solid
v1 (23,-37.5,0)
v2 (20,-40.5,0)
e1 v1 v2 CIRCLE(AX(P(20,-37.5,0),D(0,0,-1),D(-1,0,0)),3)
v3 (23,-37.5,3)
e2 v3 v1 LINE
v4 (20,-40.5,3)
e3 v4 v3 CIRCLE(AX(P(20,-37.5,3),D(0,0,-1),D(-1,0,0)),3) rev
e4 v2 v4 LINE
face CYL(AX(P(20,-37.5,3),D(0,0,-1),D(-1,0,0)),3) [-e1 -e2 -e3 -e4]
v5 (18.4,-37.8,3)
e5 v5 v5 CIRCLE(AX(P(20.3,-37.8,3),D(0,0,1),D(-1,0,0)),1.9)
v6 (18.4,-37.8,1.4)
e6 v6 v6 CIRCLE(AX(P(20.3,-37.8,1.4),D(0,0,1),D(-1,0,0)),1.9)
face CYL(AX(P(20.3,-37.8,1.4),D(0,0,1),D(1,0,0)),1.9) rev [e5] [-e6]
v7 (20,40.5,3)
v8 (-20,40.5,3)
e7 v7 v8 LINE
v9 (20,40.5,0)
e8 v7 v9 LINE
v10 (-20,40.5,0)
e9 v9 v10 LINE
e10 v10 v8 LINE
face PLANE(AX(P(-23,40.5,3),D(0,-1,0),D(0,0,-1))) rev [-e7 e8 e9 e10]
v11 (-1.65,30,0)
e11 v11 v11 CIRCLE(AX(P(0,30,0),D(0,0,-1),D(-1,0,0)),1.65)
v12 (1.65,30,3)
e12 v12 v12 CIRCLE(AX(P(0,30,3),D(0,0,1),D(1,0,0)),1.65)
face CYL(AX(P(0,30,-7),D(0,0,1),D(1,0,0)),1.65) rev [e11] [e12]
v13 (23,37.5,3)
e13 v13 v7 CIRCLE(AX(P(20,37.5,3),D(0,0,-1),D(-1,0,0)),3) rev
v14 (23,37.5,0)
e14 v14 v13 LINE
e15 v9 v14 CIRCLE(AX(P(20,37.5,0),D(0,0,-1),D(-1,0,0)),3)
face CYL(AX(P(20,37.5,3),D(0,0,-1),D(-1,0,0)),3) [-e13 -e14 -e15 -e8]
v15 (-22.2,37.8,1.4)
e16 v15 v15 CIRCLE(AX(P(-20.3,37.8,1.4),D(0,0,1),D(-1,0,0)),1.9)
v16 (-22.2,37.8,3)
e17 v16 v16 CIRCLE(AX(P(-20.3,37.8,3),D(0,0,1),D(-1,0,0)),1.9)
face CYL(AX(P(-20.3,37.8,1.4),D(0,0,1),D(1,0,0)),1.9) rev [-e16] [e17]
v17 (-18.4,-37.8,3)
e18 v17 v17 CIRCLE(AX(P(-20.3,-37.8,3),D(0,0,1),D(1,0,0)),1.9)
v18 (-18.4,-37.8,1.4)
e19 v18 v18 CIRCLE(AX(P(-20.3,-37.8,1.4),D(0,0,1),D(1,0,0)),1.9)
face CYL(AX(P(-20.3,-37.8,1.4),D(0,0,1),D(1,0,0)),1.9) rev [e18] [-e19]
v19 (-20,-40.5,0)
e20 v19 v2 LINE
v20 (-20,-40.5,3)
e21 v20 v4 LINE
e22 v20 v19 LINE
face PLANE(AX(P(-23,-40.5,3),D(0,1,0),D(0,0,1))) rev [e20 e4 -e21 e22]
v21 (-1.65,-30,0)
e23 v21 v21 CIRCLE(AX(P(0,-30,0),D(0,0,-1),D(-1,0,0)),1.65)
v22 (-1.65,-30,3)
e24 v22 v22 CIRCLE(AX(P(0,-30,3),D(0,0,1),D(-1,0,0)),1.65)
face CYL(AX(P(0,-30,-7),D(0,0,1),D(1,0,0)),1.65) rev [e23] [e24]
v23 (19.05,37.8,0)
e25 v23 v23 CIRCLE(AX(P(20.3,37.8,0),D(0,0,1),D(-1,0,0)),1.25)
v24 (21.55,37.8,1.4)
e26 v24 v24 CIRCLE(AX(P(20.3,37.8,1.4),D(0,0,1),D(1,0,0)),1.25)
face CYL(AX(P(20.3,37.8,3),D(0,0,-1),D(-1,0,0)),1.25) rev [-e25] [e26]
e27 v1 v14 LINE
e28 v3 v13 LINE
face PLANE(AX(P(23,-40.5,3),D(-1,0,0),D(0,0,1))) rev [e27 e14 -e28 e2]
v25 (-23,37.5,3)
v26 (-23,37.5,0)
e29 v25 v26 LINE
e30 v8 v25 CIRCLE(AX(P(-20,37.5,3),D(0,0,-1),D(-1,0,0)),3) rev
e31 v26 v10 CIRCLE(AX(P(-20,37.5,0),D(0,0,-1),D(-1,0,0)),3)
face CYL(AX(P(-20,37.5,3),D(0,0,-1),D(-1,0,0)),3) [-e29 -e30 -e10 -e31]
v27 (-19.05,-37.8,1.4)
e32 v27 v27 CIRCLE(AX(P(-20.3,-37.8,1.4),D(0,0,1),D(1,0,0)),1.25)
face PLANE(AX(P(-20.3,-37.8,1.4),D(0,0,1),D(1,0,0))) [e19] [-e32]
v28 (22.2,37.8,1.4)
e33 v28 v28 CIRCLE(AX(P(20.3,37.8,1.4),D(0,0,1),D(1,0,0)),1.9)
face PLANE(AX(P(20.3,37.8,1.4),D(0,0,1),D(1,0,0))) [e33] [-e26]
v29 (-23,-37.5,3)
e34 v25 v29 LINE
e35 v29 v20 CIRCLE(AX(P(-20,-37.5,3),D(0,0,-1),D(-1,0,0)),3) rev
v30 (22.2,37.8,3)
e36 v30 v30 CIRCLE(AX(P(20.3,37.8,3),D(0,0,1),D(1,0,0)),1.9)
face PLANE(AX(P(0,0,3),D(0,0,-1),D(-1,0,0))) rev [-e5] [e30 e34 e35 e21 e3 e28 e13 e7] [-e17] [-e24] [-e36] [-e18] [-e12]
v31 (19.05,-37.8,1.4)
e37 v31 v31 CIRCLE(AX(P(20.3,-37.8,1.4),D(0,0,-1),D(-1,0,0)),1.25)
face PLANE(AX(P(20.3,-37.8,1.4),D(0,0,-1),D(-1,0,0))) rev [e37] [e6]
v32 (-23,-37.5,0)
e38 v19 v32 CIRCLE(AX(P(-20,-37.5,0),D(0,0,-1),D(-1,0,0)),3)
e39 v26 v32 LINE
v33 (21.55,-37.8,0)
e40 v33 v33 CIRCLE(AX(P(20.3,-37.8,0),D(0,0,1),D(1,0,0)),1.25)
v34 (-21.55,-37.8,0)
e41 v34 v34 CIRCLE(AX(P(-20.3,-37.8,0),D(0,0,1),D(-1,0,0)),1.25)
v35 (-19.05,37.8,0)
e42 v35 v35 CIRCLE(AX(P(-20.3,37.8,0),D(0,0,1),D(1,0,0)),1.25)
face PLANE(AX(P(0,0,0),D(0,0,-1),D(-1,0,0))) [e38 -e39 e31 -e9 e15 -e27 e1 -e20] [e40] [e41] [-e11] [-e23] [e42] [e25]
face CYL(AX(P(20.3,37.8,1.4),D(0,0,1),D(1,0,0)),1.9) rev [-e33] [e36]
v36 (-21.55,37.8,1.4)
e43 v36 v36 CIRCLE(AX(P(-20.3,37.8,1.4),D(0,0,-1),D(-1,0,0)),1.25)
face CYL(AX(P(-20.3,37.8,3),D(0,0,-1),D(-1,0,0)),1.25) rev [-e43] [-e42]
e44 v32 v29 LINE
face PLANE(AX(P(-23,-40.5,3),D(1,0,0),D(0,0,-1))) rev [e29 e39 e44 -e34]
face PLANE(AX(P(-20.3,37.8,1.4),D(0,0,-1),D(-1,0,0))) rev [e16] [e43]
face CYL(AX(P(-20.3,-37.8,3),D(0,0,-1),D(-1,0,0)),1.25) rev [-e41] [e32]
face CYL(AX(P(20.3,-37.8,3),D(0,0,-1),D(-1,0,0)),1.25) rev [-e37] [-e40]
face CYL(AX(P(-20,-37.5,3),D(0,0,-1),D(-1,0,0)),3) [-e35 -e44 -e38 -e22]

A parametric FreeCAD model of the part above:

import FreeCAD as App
import Part
import Sketcher
from FreeCAD import Vector


def edges_at(feature, points):
    """Names of the edges that pass closest to the given points."""
    edges = feature.Shape.Edges
    near = lambda p: min(range(len(edges)), key=lambda i: edges[i].distToShape(Part.Vertex(*p))[0])
    return sorted({f"Edge{near(p) + 1}" for p in points})


def add_polygon(sketch, points):
    """Adds a closed chain of lines whose ends are joined by coincident constraints."""
    first, n = sketch.GeometryCount, len(points)
    for a, b in zip(points, points[1:] + points[:1]):
        sketch.addGeometry(Part.LineSegment(App.Vector(*a, 0), App.Vector(*b, 0)), False)
    for i in range(n):
        sketch.addConstraint(Sketcher.Constraint("Coincident", first + i, 2, first + (i + 1) % n, 1))

doc = App.newDocument("Part")
params = doc.addObject("Spreadsheet::Sheet", "Params")
for row, (alias, value) in enumerate([
    ("sketch1_diameter", "2.5 mm"),
    ("sketch1_width", "46 mm"),
    ("sketch1_height", "81 mm"),
    ("pad1_length", "3 mm"),
    ("fillet_radius", "3 mm"),
    ("sketch2_diameter", "3.8 mm"),
    ("pocket1_length", "1.6 mm"),
    ("sketch3_diameter", "3.3 mm"),
    ("pocket2_length", "10 mm"),
], start=1):
    params.set(f"A{row}", alias)
    params.set(f"B{row}", "=" + value)
    params.setAlias(f"B{row}", alias)

body = doc.addObject("PartDesign::Body", "Body")

sketch1 = body.newObject("Sketcher::SketchObject", "Sketch")
sketch1.AttachmentSupport = (doc.getObject("XY_Plane"), [""])
sketch1.MapMode = "FlatFace"
add_polygon(sketch1, [(-23, 40.5), (-23, -40.5), (23, -40.5), (23, 40.5)])
sketch1.addGeometry(Part.Circle(Vector(-20.3, -37.8, 0), Vector(0, 0, 1), 1.25), False)
sketch1.addGeometry(Part.Circle(Vector(20.3, -37.8, 0), Vector(0, 0, 1), 1.25), False)
sketch1.addGeometry(Part.Circle(Vector(-20.3, 37.8, 0), Vector(0, 0, 1), 1.25), False)
sketch1.addGeometry(Part.Circle(Vector(20.3, 37.8, 0), Vector(0, 0, 1), 1.25), False)
sketch1.addConstraint([
    Sketcher.Constraint("Vertical", 0),
    Sketcher.Constraint("Horizontal", 1),
    Sketcher.Constraint("Vertical", 2),
    Sketcher.Constraint("Horizontal", 3),
    Sketcher.Constraint("Equal", 4, 5),
    Sketcher.Constraint("Equal", 5, 6),
    Sketcher.Constraint("Equal", 6, 7),
    Sketcher.Constraint("Symmetric", 5, 3, 6, 3, -1, 1),
    Sketcher.Constraint("Symmetric", 4, 3, 7, 3, -1, 1),
    Sketcher.Constraint("Symmetric", 0, 2, 2, 2, -1, 1),
    Sketcher.Constraint("Symmetric", 4, 3, 5, 3, -2),
    Sketcher.Constraint("Diameter", 4, 2.5),
    Sketcher.Constraint("DistanceX", 1, 1, 1, 2, 46.0),
    Sketcher.Constraint("DistanceY", 0, 2, 0, 1, 81.0),
    Sketcher.Constraint("DistanceX", 4, 3, -1, 1, 20.3),
    Sketcher.Constraint("DistanceY", 4, 3, -1, 1, 37.8),
])
sketch1.setExpression("Constraints[15]", "Params.sketch1_diameter")
sketch1.setExpression("Constraints[16]", "Params.sketch1_width")
sketch1.setExpression("Constraints[17]", "Params.sketch1_height")
pad1 = body.newObject("PartDesign::Pad", "Pad")
pad1.Profile = sketch1
pad1.setExpression("Length", "Params.pad1_length")
doc.recompute()

fillet = body.newObject("PartDesign::Fillet", "Fillet")
fillet.Base = (pad1, edges_at(pad1, [
    (23, -40.5, 1.5),
    (-23, -40.5, 1.5),
    (-23, 40.5, 1.5),
    (23, 40.5, 1.5),
]))
fillet.setExpression("Radius", "Params.fillet_radius")

sketch2 = body.newObject("Sketcher::SketchObject", "Sketch001")
sketch2.AttachmentSupport = (doc.getObject("XY_Plane"), [""])
sketch2.MapMode = "FlatFace"
sketch2.AttachmentOffset = App.Placement(Vector(0, 0, 3), App.Rotation())
sketch2.addGeometry([
    Part.Circle(Vector(20.3, 37.8, 0), Vector(0, 0, 1), 1.9),
    Part.Circle(Vector(-20.3, 37.8, 0), Vector(0, 0, 1), 1.9),
    Part.Circle(Vector(-20.3, -37.8, 0), Vector(0, 0, 1), 1.9),
    Part.Circle(Vector(20.3, -37.8, 0), Vector(0, 0, 1), 1.9),
], False)
sketch2.addConstraint([
    Sketcher.Constraint("Equal", 0, 1),
    Sketcher.Constraint("Equal", 1, 2),
    Sketcher.Constraint("Equal", 2, 3),
    Sketcher.Constraint("Symmetric", 0, 3, 2, 3, -1, 1),
    Sketcher.Constraint("Symmetric", 1, 3, 3, 3, -1, 1),
    Sketcher.Constraint("Symmetric", 0, 3, 1, 3, -2),
    Sketcher.Constraint("Diameter", 0, 3.8),
    Sketcher.Constraint("DistanceX", -1, 1, 0, 3, 20.3),
    Sketcher.Constraint("DistanceY", -1, 1, 0, 3, 37.8),
])
sketch2.setExpression("Constraints[6]", "Params.sketch2_diameter")
pocket1 = body.newObject("PartDesign::Pocket", "Pocket")
pocket1.Profile = sketch2
pocket1.setExpression("Length", "Params.pocket1_length")

sketch3 = body.newObject("Sketcher::SketchObject", "Sketch002")
sketch3.AttachmentSupport = (doc.getObject("XY_Plane"), [""])
sketch3.MapMode = "FlatFace"
sketch3.AttachmentOffset = App.Placement(Vector(0, 0, 3), App.Rotation())
sketch3.addGeometry([
    Part.Circle(Vector(0, 30, 0), Vector(0, 0, 1), 1.65),
    Part.Circle(Vector(0, -30, 0), Vector(0, 0, 1), 1.65),
], False)
sketch3.addConstraint([
    Sketcher.Constraint("Equal", 0, 1),
    Sketcher.Constraint("Symmetric", 0, 3, 1, 3, -1, 1),
    Sketcher.Constraint("PointOnObject", 0, 3, -2),
    Sketcher.Constraint("Diameter", 0, 3.3),
    Sketcher.Constraint("DistanceY", -1, 1, 0, 3, 30.0),
])
sketch3.setExpression("Constraints[3]", "Params.sketch3_diameter")
pocket2 = body.newObject("PartDesign::Pocket", "Pocket001")
pocket2.Profile = sketch3
pocket2.setExpression("Length", "Params.pocket2_length")

doc.recompute()
